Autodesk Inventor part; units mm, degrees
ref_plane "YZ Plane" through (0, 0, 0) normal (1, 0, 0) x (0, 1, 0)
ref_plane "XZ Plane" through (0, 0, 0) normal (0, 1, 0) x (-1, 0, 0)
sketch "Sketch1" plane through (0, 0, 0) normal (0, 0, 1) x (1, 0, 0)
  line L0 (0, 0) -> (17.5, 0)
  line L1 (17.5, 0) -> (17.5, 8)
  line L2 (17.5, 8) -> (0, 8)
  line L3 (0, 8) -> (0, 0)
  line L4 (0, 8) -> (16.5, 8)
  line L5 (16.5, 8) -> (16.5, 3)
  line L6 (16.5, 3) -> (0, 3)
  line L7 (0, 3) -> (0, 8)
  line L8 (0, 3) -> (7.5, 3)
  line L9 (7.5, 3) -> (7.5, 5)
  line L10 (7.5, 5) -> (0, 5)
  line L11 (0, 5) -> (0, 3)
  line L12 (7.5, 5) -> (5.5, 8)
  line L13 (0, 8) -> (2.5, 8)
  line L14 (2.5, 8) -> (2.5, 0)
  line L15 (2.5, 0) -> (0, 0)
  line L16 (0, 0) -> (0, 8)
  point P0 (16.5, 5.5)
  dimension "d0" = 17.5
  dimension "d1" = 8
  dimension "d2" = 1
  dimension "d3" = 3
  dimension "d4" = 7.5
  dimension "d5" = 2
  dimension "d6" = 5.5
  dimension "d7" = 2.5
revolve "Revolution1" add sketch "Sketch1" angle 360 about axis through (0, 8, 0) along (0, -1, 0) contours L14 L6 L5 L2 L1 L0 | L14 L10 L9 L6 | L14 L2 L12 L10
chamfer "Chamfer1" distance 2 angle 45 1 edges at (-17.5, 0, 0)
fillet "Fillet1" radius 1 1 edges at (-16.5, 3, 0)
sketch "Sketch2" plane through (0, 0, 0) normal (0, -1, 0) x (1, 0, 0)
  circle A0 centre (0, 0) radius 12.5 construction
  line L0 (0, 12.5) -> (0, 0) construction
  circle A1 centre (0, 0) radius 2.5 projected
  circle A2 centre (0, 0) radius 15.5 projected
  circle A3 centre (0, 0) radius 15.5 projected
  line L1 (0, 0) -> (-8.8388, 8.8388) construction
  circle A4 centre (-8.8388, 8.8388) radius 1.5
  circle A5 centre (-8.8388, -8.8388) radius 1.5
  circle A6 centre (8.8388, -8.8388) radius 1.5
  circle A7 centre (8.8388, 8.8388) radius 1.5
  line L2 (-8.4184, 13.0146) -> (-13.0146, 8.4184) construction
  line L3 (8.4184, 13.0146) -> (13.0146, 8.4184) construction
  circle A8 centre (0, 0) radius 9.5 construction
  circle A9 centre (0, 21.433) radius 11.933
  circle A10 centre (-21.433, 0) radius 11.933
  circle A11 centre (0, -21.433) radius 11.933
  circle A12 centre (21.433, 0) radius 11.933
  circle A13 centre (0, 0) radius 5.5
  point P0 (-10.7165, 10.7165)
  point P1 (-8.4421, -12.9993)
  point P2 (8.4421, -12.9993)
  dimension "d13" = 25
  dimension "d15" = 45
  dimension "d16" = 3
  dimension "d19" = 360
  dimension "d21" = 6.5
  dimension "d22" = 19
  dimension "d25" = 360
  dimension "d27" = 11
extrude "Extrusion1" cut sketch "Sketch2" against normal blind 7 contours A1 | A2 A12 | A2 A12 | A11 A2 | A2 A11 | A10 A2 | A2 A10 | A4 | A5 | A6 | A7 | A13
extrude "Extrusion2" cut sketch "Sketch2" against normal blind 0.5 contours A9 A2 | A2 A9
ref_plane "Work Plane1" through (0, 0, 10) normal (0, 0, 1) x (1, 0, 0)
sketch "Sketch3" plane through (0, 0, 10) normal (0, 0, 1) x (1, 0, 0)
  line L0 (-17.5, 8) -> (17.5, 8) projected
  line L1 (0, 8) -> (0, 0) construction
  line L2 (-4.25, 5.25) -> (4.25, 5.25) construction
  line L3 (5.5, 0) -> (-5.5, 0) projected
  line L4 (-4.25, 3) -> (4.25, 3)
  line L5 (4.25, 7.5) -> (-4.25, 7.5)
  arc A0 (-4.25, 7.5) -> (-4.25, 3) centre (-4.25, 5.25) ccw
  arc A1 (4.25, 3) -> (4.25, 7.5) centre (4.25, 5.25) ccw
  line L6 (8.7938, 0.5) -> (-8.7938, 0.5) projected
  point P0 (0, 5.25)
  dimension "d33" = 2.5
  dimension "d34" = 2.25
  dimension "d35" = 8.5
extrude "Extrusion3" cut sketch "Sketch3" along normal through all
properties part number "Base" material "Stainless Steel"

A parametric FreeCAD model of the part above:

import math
import FreeCAD as App
import Part
import Sketcher
from FreeCAD import Vector
Q = App.Units.Quantity


def edges_at(feature, points):
    """Names of the edges that pass closest to the given points."""
    edges = feature.Shape.Edges
    near = lambda p: min(range(len(edges)), key=lambda i: edges[i].distToShape(Part.Vertex(*p))[0])
    return sorted({f"Edge{near(p) + 1}" for p in points})

doc = App.newDocument("Part")
body = doc.addObject("PartDesign::Body", "Body")

sketch1 = body.newObject("Sketcher::SketchObject", "Sketch")
sketch1.AttachmentSupport = (doc.getObject("XY_Plane"), [""])
sketch1.MapMode = "FlatFace"
sketch1.addGeometry(Part.LineSegment(Vector(2.5, 0, 0), Vector(17.5, 0, 0)), False)
sketch1.addGeometry(Part.LineSegment(Vector(17.5, 0, 0), Vector(17.5, 8, 0)), False)
sketch1.addGeometry(Part.LineSegment(Vector(17.5, 8, 0), Vector(16.5, 8, 0)), False)
sketch1.addGeometry(Part.LineSegment(Vector(16.5, 8, 0), Vector(16.5, 3, 0)), False)
sketch1.addGeometry(Part.LineSegment(Vector(16.5, 3, 0), Vector(7.5, 3, 0)), False)
sketch1.addGeometry(Part.LineSegment(Vector(7.5, 3, 0), Vector(7.5, 5, 0)), False)
sketch1.addGeometry(Part.LineSegment(Vector(7.5, 5, 0), Vector(5.5, 8, 0)), False)
sketch1.addGeometry(Part.LineSegment(Vector(5.5, 8, 0), Vector(2.5, 8, 0)), False)
sketch1.addGeometry(Part.LineSegment(Vector(2.5, 8, 0), Vector(2.5, 0, 0)), False)
sketch1.addConstraint(Sketcher.Constraint("Coincident", 0, 2, 1, 1))
sketch1.addConstraint(Sketcher.Constraint("Coincident", 1, 2, 2, 1))
sketch1.addConstraint(Sketcher.Constraint("Coincident", 2, 2, 3, 1))
sketch1.addConstraint(Sketcher.Constraint("Coincident", 3, 2, 4, 1))
sketch1.addConstraint(Sketcher.Constraint("Coincident", 4, 2, 5, 1))
sketch1.addConstraint(Sketcher.Constraint("Coincident", 5, 2, 6, 1))
sketch1.addConstraint(Sketcher.Constraint("Coincident", 6, 2, 7, 1))
sketch1.addConstraint(Sketcher.Constraint("Coincident", 7, 2, 8, 1))
sketch1.addConstraint(Sketcher.Constraint("Coincident", 8, 2, 0, 1))
sketch1.addConstraint(Sketcher.Constraint("Horizontal", 0))
sketch1.addConstraint(Sketcher.Constraint("Vertical", 1))
sketch1.addConstraint(Sketcher.Constraint("Horizontal", 2))
sketch1.addConstraint(Sketcher.Constraint("Vertical", 3))
sketch1.addConstraint(Sketcher.Constraint("Horizontal", 4))
sketch1.addConstraint(Sketcher.Constraint("Vertical", 5))
sketch1.addConstraint(Sketcher.Constraint("Horizontal", 7))
sketch1.addConstraint(Sketcher.Constraint("Vertical", 8))
sketch1.addConstraint(Sketcher.Constraint("PointOnObject", 0, 2, -1))
sketch1.addConstraint(Sketcher.Constraint("Horizontal", 2, 2, 6, 2))
sketch1.addConstraint(Sketcher.Constraint("DistanceX", 2, 2, 2, 1, Q("1 mm")))
sketch1.addConstraint(Sketcher.Constraint("DistanceX", 7, 2, 7, 1, Q("3 mm")))
sketch1.addConstraint(Sketcher.Constraint("DistanceY", 1, 1, 1, 2, Q("8 mm")))
sketch1.addConstraint(Sketcher.Constraint("DistanceY", 5, 1, 5, 2, Q("2 mm")))
sketch1.addConstraint(Sketcher.Constraint("DistanceY", -1, 1, 3, 2, Q("3 mm")))
sketch1.addConstraint(Sketcher.Constraint("DistanceX", 6, 2, 5, 2, Q("2 mm")))
sketch1.addConstraint(Sketcher.Constraint("DistanceX", -1, 1, 0, 2, Q("17.5 mm")))
sketch1.addConstraint(Sketcher.Constraint("DistanceX", -1, 1, 4, 2, Q("7.5 mm")))
revolution = body.newObject("PartDesign::Revolution", "Revolution")
revolution.Profile = sketch1
revolution.ReferenceAxis = (sketch1, ["V_Axis"])
revolution.Angle = 360
doc.recompute()

chamfer = body.newObject("PartDesign::Chamfer", "Chamfer")
chamfer.Base = (revolution, edges_at(revolution, [(-17.5, 0, 0)]))
chamfer.Size = 2
doc.recompute()

fillet = body.newObject("PartDesign::Fillet", "Fillet")
fillet.Base = (chamfer, edges_at(chamfer, [(-16.5, 3, 0)]))
fillet.Radius = 1

sketch2 = body.newObject("Sketcher::SketchObject", "Sketch001")
sketch2.AttachmentSupport = (doc.getObject("XZ_Plane"), [""])
sketch2.MapMode = "FlatFace"
sketch2.addGeometry(Part.Circle(Vector(0, 0, 0), Vector(0, 0, 1), 5.5), False)
sketch2.addGeometry(Part.Circle(Vector(21.433, 0, 0), Vector(0, 0, 1), 11.933), False)
sketch2.addGeometry(Part.Circle(Vector(0, -21.433, 0), Vector(0, 0, 1), 11.933), False)
sketch2.addGeometry(Part.Circle(Vector(-21.433, 0, 0), Vector(0, 0, 1), 11.933), False)
sketch2.addGeometry(Part.Circle(Vector(-8.8388, 8.8388, 0), Vector(0, 0, 1), 1.5), False)
sketch2.addGeometry(Part.Circle(Vector(-8.8388, -8.8388, 0), Vector(0, 0, 1), 1.5), False)
sketch2.addGeometry(Part.Circle(Vector(8.8388, -8.8388, 0), Vector(0, 0, 1), 1.5), False)
sketch2.addGeometry(Part.Circle(Vector(8.8388, 8.8388, 0), Vector(0, 0, 1), 1.5), False)
sketch2.addConstraint(Sketcher.Constraint("Coincident", 0, 3, -1, 1))
sketch2.addConstraint(Sketcher.Constraint("Equal", 1, 2))
sketch2.addConstraint(Sketcher.Constraint("Equal", 2, 3))
sketch2.addConstraint(Sketcher.Constraint("Equal", 4, 5))
sketch2.addConstraint(Sketcher.Constraint("Equal", 5, 6))
sketch2.addConstraint(Sketcher.Constraint("Equal", 6, 7))
sketch2.addConstraint(Sketcher.Constraint("Symmetric", 1, 3, 3, 3, -1, 1))
sketch2.addConstraint(Sketcher.Constraint("Symmetric", 4, 3, 6, 3, -1, 1))
sketch2.addConstraint(Sketcher.Constraint("Symmetric", 5, 3, 7, 3, -1, 1))
sketch2.addConstraint(Sketcher.Constraint("Symmetric", 5, 3, 6, 3, -2))
sketch2.addConstraint(Sketcher.Constraint("PointOnObject", 1, 3, -1))
sketch2.addConstraint(Sketcher.Constraint("PointOnObject", 2, 3, -2))
sketch2.addConstraint(Sketcher.Constraint("Diameter", 0, Q("11 mm")))
sketch2.addConstraint(Sketcher.Constraint("Diameter", 4, Q("3 mm")))
sketch2.addConstraint(Sketcher.Constraint("Diameter", 1, Q("23.866 mm")))
sketch2.addConstraint(Sketcher.Constraint("DistanceX", -1, 1, 1, 3, Q("21.433 mm")))
sketch2.addConstraint(Sketcher.Constraint("DistanceY", 2, 3, -1, 1, Q("21.433 mm")))
sketch2.addConstraint(Sketcher.Constraint("DistanceX", 4, 3, -1, 1, Q("8.8388 mm")))
sketch2.addConstraint(Sketcher.Constraint("DistanceY", -1, 1, 4, 3, Q("8.8388 mm")))
pocket1 = body.newObject("PartDesign::Pocket", "Pocket")
pocket1.Profile = sketch2
pocket1.Length = 7

sketch3 = body.newObject("Sketcher::SketchObject", "Sketch002")
sketch3.AttachmentSupport = (doc.getObject("XZ_Plane"), [""])
sketch3.MapMode = "FlatFace"
sketch3.addGeometry(Part.Circle(Vector(0, 21.433, 0), Vector(0, 0, 1), 11.933), False)
sketch3.addConstraint(Sketcher.Constraint("PointOnObject", 0, 3, -2))
sketch3.addConstraint(Sketcher.Constraint("Diameter", 0, Q("23.866 mm")))
sketch3.addConstraint(Sketcher.Constraint("DistanceY", -1, 1, 0, 3, Q("21.433 mm")))
pocket2 = body.newObject("PartDesign::Pocket", "Pocket001")
pocket2.Profile = sketch3
pocket2.Length = 0.5

sketch4 = body.newObject("Sketcher::SketchObject", "Sketch003")
sketch4.AttachmentSupport = (doc.getObject("XY_Plane"), [""])
sketch4.MapMode = "FlatFace"
sketch4.AttachmentOffset = App.Placement(Vector(0, 0, 10), App.Rotation())
sketch4.addGeometry(Part.ArcOfCircle(Part.Circle(Vector(-4.25, 5.25, 0), Vector(0, 0, 1), 2.25), math.radians(90), math.radians(270)), False)
sketch4.addGeometry(Part.LineSegment(Vector(-4.25, 3, 0), Vector(4.25, 3, 0)), False)
sketch4.addGeometry(Part.ArcOfCircle(Part.Circle(Vector(4.25, 5.25, 0), Vector(0, 0, 1), 2.25), math.radians(-90), math.radians(90)), False)
sketch4.addGeometry(Part.LineSegment(Vector(4.25, 7.5, 0), Vector(-4.25, 7.5, 0)), False)
sketch4.addConstraint(Sketcher.Constraint("Tangent", 0, 2, 1, 1))
sketch4.addConstraint(Sketcher.Constraint("Tangent", 1, 2, 2, 1))
sketch4.addConstraint(Sketcher.Constraint("Tangent", 2, 2, 3, 1))
sketch4.addConstraint(Sketcher.Constraint("Tangent", 3, 2, 0, 1))
sketch4.addConstraint(Sketcher.Constraint("Horizontal", 1))
sketch4.addConstraint(Sketcher.Constraint("Horizontal", 3))
sketch4.addConstraint(Sketcher.Constraint("Radius", 0, Q("2.25 mm")))
sketch4.addConstraint(Sketcher.Constraint("DistanceX", 1, 1, 1, 2, Q("8.5 mm")))
sketch4.addConstraint(Sketcher.Constraint("DistanceY", -1, 1, 0, 2, Q("3 mm")))
sketch4.addConstraint(Sketcher.Constraint("DistanceX", 0, 3, -1, 1, Q("4.25 mm")))
pocket3 = body.newObject("PartDesign::Pocket", "Pocket002")
pocket3.Profile = sketch4
pocket3.Type = "ThroughAll"
pocket3.Reversed = True

doc.recompute()
